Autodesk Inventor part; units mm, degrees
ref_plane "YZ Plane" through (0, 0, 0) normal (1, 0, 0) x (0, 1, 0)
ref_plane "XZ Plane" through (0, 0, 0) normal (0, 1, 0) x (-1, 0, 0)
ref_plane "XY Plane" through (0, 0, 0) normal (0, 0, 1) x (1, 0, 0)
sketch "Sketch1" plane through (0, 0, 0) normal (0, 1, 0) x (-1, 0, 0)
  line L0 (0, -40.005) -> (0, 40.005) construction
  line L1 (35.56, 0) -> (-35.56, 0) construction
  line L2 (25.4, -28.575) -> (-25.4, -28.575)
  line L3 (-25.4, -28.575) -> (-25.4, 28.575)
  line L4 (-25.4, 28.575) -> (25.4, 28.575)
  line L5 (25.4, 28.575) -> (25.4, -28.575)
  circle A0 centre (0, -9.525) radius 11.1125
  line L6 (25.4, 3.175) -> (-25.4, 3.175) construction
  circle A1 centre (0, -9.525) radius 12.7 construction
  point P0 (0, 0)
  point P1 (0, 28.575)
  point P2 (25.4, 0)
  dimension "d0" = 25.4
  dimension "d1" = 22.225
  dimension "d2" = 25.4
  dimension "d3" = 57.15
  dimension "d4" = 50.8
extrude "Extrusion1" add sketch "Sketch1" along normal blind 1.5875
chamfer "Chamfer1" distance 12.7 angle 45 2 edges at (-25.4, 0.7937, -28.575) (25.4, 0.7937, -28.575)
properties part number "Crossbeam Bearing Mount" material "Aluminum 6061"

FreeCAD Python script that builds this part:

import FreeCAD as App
import Part
import Sketcher

V = App.Vector
Q = App.Units.Quantity


def edges_at(feature, points):
    """Names of the edges that pass closest to the given points."""
    edges = feature.Shape.Edges
    near = lambda p: min(range(len(edges)), key=lambda i: edges[i].distToShape(Part.Vertex(*p))[0])
    return sorted({f"Edge{near(p) + 1}" for p in points})

doc = App.newDocument("Part")
body = doc.addObject("PartDesign::Body", "Body")

# Sketch on XZ plane
sketch1 = doc.addObject("Sketcher::SketchObject", "Sketch")
body.addObject(sketch1)
sketch1.AttachmentSupport = (doc.XZ_Plane, [""])
sketch1.MapMode = "FlatFace"
sketch1.addGeometry([
    Part.LineSegment(V(25, -29, 0), V(-25, -29, 0)),  # 0
    Part.LineSegment(V(-25, -29, 0), V(-25, 29, 0)),  # 1
    Part.LineSegment(V(-25, 29, 0), V(25, 29, 0)),  # 2
    Part.LineSegment(V(25, 29, 0), V(25, -29, 0)),  # 3
    Part.Circle(V(0, -10, 0), V(0, 0, 1), 11),  # 4
], False)
sketch1.addConstraint([
    Sketcher.Constraint("Coincident", 0, 2, 1, 1),
    Sketcher.Constraint("Coincident", 1, 2, 2, 1),
    Sketcher.Constraint("Coincident", 2, 2, 3, 1),
    Sketcher.Constraint("Coincident", 3, 2, 0, 1),
    Sketcher.Constraint("Horizontal", 0),
    Sketcher.Constraint("Vertical", 1),
    Sketcher.Constraint("Horizontal", 2),
    Sketcher.Constraint("Vertical", 3),
    Sketcher.Constraint("Symmetric", 0, 2, 2, 2, -1, 1),
    Sketcher.Constraint("PointOnObject", 4, 3, -2),
    Sketcher.Constraint("DistanceX", 0, 2, 0, 1, Q("2 in")),
    Sketcher.Constraint("Diameter", 4, Q("0.875 in")),
    Sketcher.Constraint("DistanceY", 1, 1, 1, 2, Q("2.25 in")),
    Sketcher.Constraint("DistanceY", 4, 3, 1, 2, Q("1.5 in")),
])
pad1 = doc.addObject("PartDesign::Pad", "Pad")
body.addObject(pad1)
pad1.Profile = sketch1
pad1.Length = Q("0.0625 in")
pad1.Reversed = True
doc.recompute()

chamfer = doc.addObject("PartDesign::Chamfer", "Chamfer")
body.addObject(chamfer)
chamfer.Base = (pad1, edges_at(pad1, [(-25.4, 0.794, -28.575), (25.4, 0.794, -28.575)]))
chamfer.Size = Q("0.5 in")

doc.recompute()
